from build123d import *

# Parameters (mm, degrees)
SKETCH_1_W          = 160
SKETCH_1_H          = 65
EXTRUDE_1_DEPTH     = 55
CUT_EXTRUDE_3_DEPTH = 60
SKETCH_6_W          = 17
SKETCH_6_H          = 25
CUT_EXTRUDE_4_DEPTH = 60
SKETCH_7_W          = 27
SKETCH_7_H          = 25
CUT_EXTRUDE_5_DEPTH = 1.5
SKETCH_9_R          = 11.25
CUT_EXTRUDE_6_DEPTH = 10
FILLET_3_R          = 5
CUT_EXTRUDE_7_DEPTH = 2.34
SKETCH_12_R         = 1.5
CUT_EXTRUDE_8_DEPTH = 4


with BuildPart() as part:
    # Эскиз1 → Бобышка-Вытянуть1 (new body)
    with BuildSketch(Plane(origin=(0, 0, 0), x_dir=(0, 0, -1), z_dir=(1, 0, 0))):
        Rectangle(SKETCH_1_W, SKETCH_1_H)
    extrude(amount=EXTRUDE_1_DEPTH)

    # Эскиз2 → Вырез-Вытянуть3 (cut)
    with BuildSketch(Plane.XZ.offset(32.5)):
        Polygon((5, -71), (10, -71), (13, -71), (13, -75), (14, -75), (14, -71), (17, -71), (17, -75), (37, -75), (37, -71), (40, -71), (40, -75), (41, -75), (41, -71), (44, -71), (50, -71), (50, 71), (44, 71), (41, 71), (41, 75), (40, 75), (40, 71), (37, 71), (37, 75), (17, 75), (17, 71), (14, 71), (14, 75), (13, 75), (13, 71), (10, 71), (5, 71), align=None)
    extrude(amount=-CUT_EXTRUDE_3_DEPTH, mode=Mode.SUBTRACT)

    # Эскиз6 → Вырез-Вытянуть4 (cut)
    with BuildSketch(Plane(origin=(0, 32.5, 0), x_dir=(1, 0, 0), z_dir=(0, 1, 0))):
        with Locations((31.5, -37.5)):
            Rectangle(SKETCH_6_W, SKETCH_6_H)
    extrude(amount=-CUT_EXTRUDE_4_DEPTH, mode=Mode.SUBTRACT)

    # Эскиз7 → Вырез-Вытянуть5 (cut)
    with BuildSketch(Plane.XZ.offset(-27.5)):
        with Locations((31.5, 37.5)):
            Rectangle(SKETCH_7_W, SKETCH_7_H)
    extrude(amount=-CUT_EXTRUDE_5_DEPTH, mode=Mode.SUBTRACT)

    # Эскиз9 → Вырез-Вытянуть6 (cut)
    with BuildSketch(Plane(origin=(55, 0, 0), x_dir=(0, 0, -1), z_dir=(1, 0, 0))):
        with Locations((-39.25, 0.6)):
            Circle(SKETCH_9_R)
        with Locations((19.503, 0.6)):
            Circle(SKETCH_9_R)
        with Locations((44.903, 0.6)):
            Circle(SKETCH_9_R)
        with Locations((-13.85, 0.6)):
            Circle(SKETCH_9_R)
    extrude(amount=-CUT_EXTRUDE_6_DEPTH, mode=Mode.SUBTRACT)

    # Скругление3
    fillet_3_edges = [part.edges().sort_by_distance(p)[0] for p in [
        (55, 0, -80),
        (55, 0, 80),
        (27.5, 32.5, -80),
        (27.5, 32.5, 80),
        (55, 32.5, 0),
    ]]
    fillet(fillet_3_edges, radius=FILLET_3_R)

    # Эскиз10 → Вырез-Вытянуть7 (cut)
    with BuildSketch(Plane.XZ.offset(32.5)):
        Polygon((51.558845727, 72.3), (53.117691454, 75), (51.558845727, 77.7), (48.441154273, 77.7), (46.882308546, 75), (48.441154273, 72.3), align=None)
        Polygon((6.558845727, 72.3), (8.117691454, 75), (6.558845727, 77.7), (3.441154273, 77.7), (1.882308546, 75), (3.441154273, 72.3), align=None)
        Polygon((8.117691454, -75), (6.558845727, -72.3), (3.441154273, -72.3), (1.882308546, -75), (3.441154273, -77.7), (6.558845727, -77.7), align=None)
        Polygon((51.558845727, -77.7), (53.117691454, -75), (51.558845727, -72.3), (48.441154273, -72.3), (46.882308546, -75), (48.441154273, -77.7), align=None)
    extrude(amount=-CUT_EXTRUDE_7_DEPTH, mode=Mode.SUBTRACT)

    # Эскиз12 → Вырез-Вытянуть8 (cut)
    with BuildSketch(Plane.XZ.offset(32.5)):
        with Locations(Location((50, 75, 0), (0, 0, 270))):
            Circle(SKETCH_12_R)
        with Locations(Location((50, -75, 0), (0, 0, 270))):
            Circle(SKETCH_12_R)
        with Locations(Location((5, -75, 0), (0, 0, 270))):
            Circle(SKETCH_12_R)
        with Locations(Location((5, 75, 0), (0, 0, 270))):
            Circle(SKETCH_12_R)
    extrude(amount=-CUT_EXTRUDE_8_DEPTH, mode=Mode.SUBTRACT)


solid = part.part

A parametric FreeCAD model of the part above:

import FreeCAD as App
import Part
import Sketcher
Q = App.Units.Quantity


def edges_at(feature, points):
    """Names of the edges that pass closest to the given points."""
    edges = feature.Shape.Edges
    near = lambda p: min(range(len(edges)), key=lambda i: edges[i].distToShape(Part.Vertex(*p))[0])
    return sorted({f"Edge{near(p) + 1}" for p in points})


def add_polygon(sketch, points):
    """Adds a closed chain of lines whose ends are joined by coincident constraints."""
    first, n = sketch.GeometryCount, len(points)
    for a, b in zip(points, points[1:] + points[:1]):
        sketch.addGeometry(Part.LineSegment(App.Vector(*a, 0), App.Vector(*b, 0)), False)
    for i in range(n):
        sketch.addConstraint(Sketcher.Constraint("Coincident", first + i, 2, first + (i + 1) % n, 1))

doc = App.newDocument("Part")
params = doc.addObject("Spreadsheet::Sheet", "Params")
for row, (alias, value) in enumerate([
    ("sketch1_width", "65 mm"),
    ("sketch1_height", "160 mm"),
    ("pad1_length", "55 mm"),
    ("sketch2_width", "8 mm"),
    ("sketch2_width2", "1 mm"),
    ("sketch2_width3", "3 mm"),
    ("sketch2_width4", "20 mm"),
    ("sketch2_width5", "9 mm"),
    ("pocket1_length", "60 mm"),
    ("sketch3_width", "17 mm"),
    ("sketch3_height", "25 mm"),
    ("pocket2_length", "60 mm"),
    ("sketch4_width", "27 mm"),
    ("sketch4_height", "25 mm"),
    ("pocket3_length", "1.5 mm"),
    ("sketch5_diameter", "22.5 mm"),
    ("pocket4_length", "10 mm"),
    ("fillet_radius", "5 mm"),
    ("pocket5_length", "2.34 mm"),
    ("sketch7_diameter", "3 mm"),
    ("pocket6_length", "4 mm"),
], start=1):
    params.set(f"A{row}", alias)
    params.set(f"B{row}", "=" + value)
    params.setAlias(f"B{row}", alias)

body = doc.addObject("PartDesign::Body", "Body")

sketch1 = body.newObject("Sketcher::SketchObject", "Sketch")
sketch1.AttachmentSupport = (doc.getObject("YZ_Plane"), [""])
sketch1.MapMode = "FlatFace"
add_polygon(sketch1, [(32.5, 80), (-32.5, 80), (-32.5, -80), (32.5, -80)])
sketch1.addConstraint([
    Sketcher.Constraint("Horizontal", 0),
    Sketcher.Constraint("Vertical", 1),
    Sketcher.Constraint("Horizontal", 2),
    Sketcher.Constraint("Vertical", 3),
    Sketcher.Constraint("Symmetric", 0, 2, 2, 2, -1, 1),
    Sketcher.Constraint("DistanceX", 0, 2, 0, 1, 65.0),
    Sketcher.Constraint("DistanceY", 1, 2, 1, 1, 160.0),
])
sketch1.setExpression("Constraints[9]", "Params.sketch1_width")
sketch1.setExpression("Constraints[10]", "Params.sketch1_height")
pad1 = body.newObject("PartDesign::Pad", "Pad")
pad1.Profile = sketch1
pad1.setExpression("Length", "Params.pad1_length")

sketch2 = body.newObject("Sketcher::SketchObject", "Sketch001")
sketch2.AttachmentSupport = (doc.getObject("XZ_Plane"), [""])
sketch2.MapMode = "FlatFace"
sketch2.AttachmentOffset = App.Placement(App.Vector(0, 0, 32.5), App.Rotation())
add_polygon(sketch2, [(5, -71), (13, -71), (13, -75), (14, -75), (14, -71), (17, -71), (17, -75), (37, -75), (37, -71), (40, -71), (40, -75), (41, -75), (41, -71), (50, -71), (50, 71), (41, 71), (41, 75), (40, 75), (40, 71), (37, 71), (37, 75), (17, 75), (17, 71), (14, 71), (14, 75), (13, 75), (13, 71), (5, 71)])
sketch2.addConstraint([
    Sketcher.Constraint("Horizontal", 0),
    Sketcher.Constraint("Vertical", 1),
    Sketcher.Constraint("Horizontal", 2),
    Sketcher.Constraint("Vertical", 3),
    Sketcher.Constraint("Horizontal", 4),
    Sketcher.Constraint("Vertical", 5),
    Sketcher.Constraint("Horizontal", 6),
    Sketcher.Constraint("Vertical", 7),
    Sketcher.Constraint("Horizontal", 8),
    Sketcher.Constraint("Vertical", 9),
    Sketcher.Constraint("Horizontal", 10),
    Sketcher.Constraint("Vertical", 11),
    Sketcher.Constraint("Horizontal", 12),
    Sketcher.Constraint("Vertical", 13),
    Sketcher.Constraint("Horizontal", 14),
    Sketcher.Constraint("Vertical", 15),
    Sketcher.Constraint("Horizontal", 16),
    Sketcher.Constraint("Vertical", 17),
    Sketcher.Constraint("Horizontal", 18),
    Sketcher.Constraint("Vertical", 19),
    Sketcher.Constraint("Horizontal", 20),
    Sketcher.Constraint("Vertical", 21),
    Sketcher.Constraint("Horizontal", 22),
    Sketcher.Constraint("Vertical", 23),
    Sketcher.Constraint("Horizontal", 24),
    Sketcher.Constraint("Vertical", 25),
    Sketcher.Constraint("Horizontal", 26),
    Sketcher.Constraint("Vertical", 27),
    Sketcher.Constraint("Symmetric", 11, 2, 14, 2, -1),
    Sketcher.Constraint("Symmetric", 9, 2, 16, 2, -1),
    Sketcher.Constraint("Symmetric", 7, 2, 18, 2, -1),
    Sketcher.Constraint("Symmetric", 5, 2, 20, 2, -1),
    Sketcher.Constraint("Symmetric", 3, 2, 22, 2, -1),
    Sketcher.Constraint("Symmetric", 1, 2, 24, 2, -1),
    Sketcher.Constraint("Horizontal", 0, 2, 3, 2),
    Sketcher.Constraint("Horizontal", 2, 2, 5, 2),
    Sketcher.Constraint("Horizontal", 4, 2, 7, 2),
    Sketcher.Constraint("Horizontal", 6, 2, 9, 2),
    Sketcher.Constraint("Horizontal", 8, 2, 11, 2),
    Sketcher.Constraint("Horizontal", 22, 2, 25, 2),
    Sketcher.Constraint("Equal", 4, 8),
    Sketcher.Constraint("Equal", 2, 10),
    Sketcher.Constraint("DistanceX", 0, 1, 0, 2, 8.0),
    Sketcher.Constraint("DistanceX", 2, 1, 2, 2, 1.0),
    Sketcher.Constraint("DistanceX", 4, 1, 4, 2, 3.0),
    Sketcher.Constraint("DistanceX", 6, 1, 6, 2, 20.0),
    Sketcher.Constraint("DistanceX", 12, 1, 12, 2, 9.0),
    Sketcher.Constraint("DistanceY", 1, 2, 1, 1, 4.0),
    Sketcher.Constraint("DistanceY", 13, 1, 13, 2, 142.0),
    Sketcher.Constraint("DistanceX", -1, 1, 0, 2, 13.0),
])
sketch2.setExpression("Constraints[70]", "Params.sketch2_width")
sketch2.setExpression("Constraints[71]", "Params.sketch2_width2")
sketch2.setExpression("Constraints[72]", "Params.sketch2_width3")
sketch2.setExpression("Constraints[73]", "Params.sketch2_width4")
sketch2.setExpression("Constraints[74]", "Params.sketch2_width5")
pocket1 = body.newObject("PartDesign::Pocket", "Pocket")
pocket1.Profile = sketch2
pocket1.setExpression("Length", "Params.pocket1_length")

sketch3 = body.newObject("Sketcher::SketchObject", "Sketch002")
sketch3.AttachmentSupport = (doc.getObject("XZ_Plane"), [""])
sketch3.MapMode = "FlatFace"
sketch3.AttachmentOffset = App.Placement(App.Vector(0, 0, -32.5), App.Rotation())
add_polygon(sketch3, [(23, 25), (23, 50), (40, 50), (40, 25)])
sketch3.addConstraint([
    Sketcher.Constraint("Vertical", 0),
    Sketcher.Constraint("Horizontal", 1),
    Sketcher.Constraint("Vertical", 2),
    Sketcher.Constraint("Horizontal", 3),
    Sketcher.Constraint("DistanceX", 1, 1, 1, 2, 17.0),
    Sketcher.Constraint("DistanceY", 0, 1, 0, 2, 25.0),
    Sketcher.Constraint("DistanceX", -1, 1, 0, 2, 23.0),
    Sketcher.Constraint("DistanceY", -1, 1, 0, 2, 50.0),
])
sketch3.setExpression("Constraints[8]", "Params.sketch3_width")
sketch3.setExpression("Constraints[9]", "Params.sketch3_height")
pocket2 = body.newObject("PartDesign::Pocket", "Pocket001")
pocket2.Profile = sketch3
pocket2.setExpression("Length", "Params.pocket2_length")
pocket2.Reversed = True

sketch4 = body.newObject("Sketcher::SketchObject", "Sketch003")
sketch4.AttachmentSupport = (doc.getObject("XZ_Plane"), [""])
sketch4.MapMode = "FlatFace"
sketch4.AttachmentOffset = App.Placement(App.Vector(0, 0, -27.5), App.Rotation())
add_polygon(sketch4, [(18, 50), (18, 25), (45, 25), (45, 50)])
sketch4.addConstraint([
    Sketcher.Constraint("Vertical", 0),
    Sketcher.Constraint("Horizontal", 1),
    Sketcher.Constraint("Vertical", 2),
    Sketcher.Constraint("Horizontal", 3),
    Sketcher.Constraint("DistanceX", 1, 1, 1, 2, 27.0),
    Sketcher.Constraint("DistanceY", 0, 2, 0, 1, 25.0),
    Sketcher.Constraint("DistanceX", -1, 1, 0, 2, 18.0),
    Sketcher.Constraint("DistanceY", -1, 1, 0, 2, 25.0),
])
sketch4.setExpression("Constraints[8]", "Params.sketch4_width")
sketch4.setExpression("Constraints[9]", "Params.sketch4_height")
pocket3 = body.newObject("PartDesign::Pocket", "Pocket002")
pocket3.Profile = sketch4
pocket3.setExpression("Length", "Params.pocket3_length")

sketch5 = body.newObject("Sketcher::SketchObject", "Sketch004")
sketch5.AttachmentSupport = (doc.getObject("YZ_Plane"), [""])
sketch5.MapMode = "FlatFace"
sketch5.AttachmentOffset = App.Placement(App.Vector(0, 0, 55), App.Rotation())
sketch5.addGeometry([
    Part.Circle(App.Vector(0.6, 39.25, 0), App.Vector(0, 0, 1), 11.25),
    Part.Circle(App.Vector(0.6, -19.503, 0), App.Vector(0, 0, 1), 11.25),
    Part.Circle(App.Vector(0.6, -44.903, 0), App.Vector(0, 0, 1), 11.25),
    Part.Circle(App.Vector(0.6, 13.85, 0), App.Vector(0, 0, 1), 11.25),
], False)
sketch5.addConstraint([
    Sketcher.Constraint("Equal", 0, 1),
    Sketcher.Constraint("Equal", 1, 2),
    Sketcher.Constraint("Equal", 2, 3),
    Sketcher.Constraint("Vertical", 0, 3, 1, 3),
    Sketcher.Constraint("Vertical", 1, 3, 2, 3),
    Sketcher.Constraint("Vertical", 2, 3, 3, 3),
    Sketcher.Constraint("Diameter", 0, 22.5),
    Sketcher.Constraint("DistanceX", -1, 1, 0, 3, 0.6),
    Sketcher.Constraint("DistanceY", 2, 3, 1, 3, 25.4),
    Sketcher.Constraint("DistanceY", 3, 3, 0, 3, 25.4),
    Sketcher.Constraint("DistanceY", -1, 1, 0, 3, 39.25),
    Sketcher.Constraint("DistanceY", 1, 3, -1, 1, 19.503),
])
sketch5.setExpression("Constraints[6]", "Params.sketch5_diameter")
pocket4 = body.newObject("PartDesign::Pocket", "Pocket003")
pocket4.Profile = sketch5
pocket4.setExpression("Length", "Params.pocket4_length")
doc.recompute()

fillet = body.newObject("PartDesign::Fillet", "Fillet")
fillet.Base = (pocket4, edges_at(pocket4, [
    (55, 0, -80),
    (55, 0, 80),
    (27.5, 32.5, -80),
    (27.5, 32.5, 80),
    (55, 32.5, 0),
]))
fillet.setExpression("Radius", "Params.fillet_radius")

sketch6 = body.newObject("Sketcher::SketchObject", "Sketch005")
sketch6.AttachmentSupport = (doc.getObject("XZ_Plane"), [""])
sketch6.MapMode = "FlatFace"
sketch6.AttachmentOffset = App.Placement(App.Vector(0, 0, 32.5), App.Rotation())
add_polygon(sketch6, [(51.558846, 72.3), (53.117691, 75), (51.558846, 77.7), (48.441154, 77.7), (46.882309, 75), (48.441154, 72.3)])
add_polygon(sketch6, [(6.558846, 72.3), (8.117691, 75), (6.558846, 77.7), (3.441154, 77.7), (1.882309, 75), (3.441154, 72.3)])
add_polygon(sketch6, [(8.117691, -75), (6.558846, -72.3), (3.441154, -72.3), (1.882309, -75), (3.441154, -77.7), (6.558846, -77.7)])
add_polygon(sketch6, [(51.558846, -77.7), (53.117691, -75), (51.558846, -72.3), (48.441154, -72.3), (46.882309, -75), (48.441154, -77.7)])
sketch6.addConstraint([
    Sketcher.Constraint("Horizontal", 2),
    Sketcher.Constraint("Horizontal", 5),
    Sketcher.Constraint("Horizontal", 8),
    Sketcher.Constraint("Horizontal", 11),
    Sketcher.Constraint("Horizontal", 13),
    Sketcher.Constraint("Horizontal", 16),
    Sketcher.Constraint("Horizontal", 20),
    Sketcher.Constraint("Horizontal", 23),
    Sketcher.Constraint("Symmetric", 11, 2, 12, 2, -1),
    Sketcher.Constraint("Symmetric", 9, 2, 14, 2, -1),
    Sketcher.Constraint("Symmetric", 8, 2, 15, 2, -1),
    Sketcher.Constraint("Symmetric", 6, 2, 17, 2, -1),
    Sketcher.Constraint("Symmetric", 0, 2, 18, 2, -1),
    Sketcher.Constraint("Symmetric", 5, 2, 19, 2, -1),
    Sketcher.Constraint("Symmetric", 3, 2, 21, 2, -1),
    Sketcher.Constraint("Symmetric", 2, 2, 22, 2, -1),
    Sketcher.Constraint("Parallel", 0, 3),
    Sketcher.Constraint("Parallel", 1, 4),
    Sketcher.Constraint("Parallel", 3, 6),
    Sketcher.Constraint("Parallel", 4, 7),
    Sketcher.Constraint("Parallel", 6, 9),
    Sketcher.Constraint("Parallel", 7, 10),
    Sketcher.Constraint("Parallel", 10, 12),
    Sketcher.Constraint("Parallel", 9, 14),
    Sketcher.Constraint("Parallel", 14, 17),
    Sketcher.Constraint("Parallel", 17, 18),
    Sketcher.Constraint("Parallel", 18, 21),
    Sketcher.Constraint("Horizontal", 0, 2, 3, 2),
    Sketcher.Constraint("Horizontal", 3, 2, 6, 2),
    Sketcher.Constraint("Horizontal", 2, 2, 7, 2),
    Sketcher.Constraint("Horizontal", 6, 2, 9, 2),
    Sketcher.Constraint("Horizontal", 5, 2, 10, 2),
    Sketcher.Constraint("Vertical", 2, 2, 4, 2),
    Sketcher.Constraint("Equal", 5, 8),
    Sketcher.Constraint("Angle", 0, Q("60 deg")),
    Sketcher.Constraint("DistanceY", -1, 1, 0, 2, 75.0),
    Sketcher.Constraint("DistanceX", 7, 2, 1, 2, 45.0),
    Sketcher.Constraint("DistanceY", -1, 1, 1, 2, 77.7),
    Sketcher.Constraint("DistanceX", 2, 2, 2, 1, 3.117691),
    Sketcher.Constraint("DistanceX", -1, 1, 0, 2, 53.117691),
])
pocket5 = body.newObject("PartDesign::Pocket", "Pocket004")
pocket5.Profile = sketch6
pocket5.setExpression("Length", "Params.pocket5_length")

sketch7 = body.newObject("Sketcher::SketchObject", "Sketch006")
sketch7.AttachmentSupport = (doc.getObject("XZ_Plane"), [""])
sketch7.MapMode = "FlatFace"
sketch7.AttachmentOffset = App.Placement(App.Vector(0, 0, 32.5), App.Rotation())
sketch7.addGeometry([
    Part.Circle(App.Vector(50, 75, 0), App.Vector(0, 0, 1), 1.5),
    Part.Circle(App.Vector(50, -75, 0), App.Vector(0, 0, 1), 1.5),
    Part.Circle(App.Vector(5, -75, 0), App.Vector(0, 0, 1), 1.5),
    Part.Circle(App.Vector(5, 75, 0), App.Vector(0, 0, 1), 1.5),
], False)
sketch7.addConstraint([
    Sketcher.Constraint("Equal", 0, 1),
    Sketcher.Constraint("Equal", 1, 2),
    Sketcher.Constraint("Equal", 2, 3),
    Sketcher.Constraint("Symmetric", 0, 3, 1, 3, -1),
    Sketcher.Constraint("Symmetric", 2, 3, 3, 3, -1),
    Sketcher.Constraint("Horizontal", 1, 3, 2, 3),
    Sketcher.Constraint("Diameter", 0, 3.0),
    Sketcher.Constraint("DistanceX", -1, 1, 0, 3, 50.0),
    Sketcher.Constraint("DistanceY", -1, 1, 0, 3, 75.0),
    Sketcher.Constraint("DistanceX", -1, 1, 2, 3, 5.0),
])
sketch7.setExpression("Constraints[6]", "Params.sketch7_diameter")
pocket6 = body.newObject("PartDesign::Pocket", "Pocket005")
pocket6.Profile = sketch7
pocket6.setExpression("Length", "Params.pocket6_length")

doc.recompute()
